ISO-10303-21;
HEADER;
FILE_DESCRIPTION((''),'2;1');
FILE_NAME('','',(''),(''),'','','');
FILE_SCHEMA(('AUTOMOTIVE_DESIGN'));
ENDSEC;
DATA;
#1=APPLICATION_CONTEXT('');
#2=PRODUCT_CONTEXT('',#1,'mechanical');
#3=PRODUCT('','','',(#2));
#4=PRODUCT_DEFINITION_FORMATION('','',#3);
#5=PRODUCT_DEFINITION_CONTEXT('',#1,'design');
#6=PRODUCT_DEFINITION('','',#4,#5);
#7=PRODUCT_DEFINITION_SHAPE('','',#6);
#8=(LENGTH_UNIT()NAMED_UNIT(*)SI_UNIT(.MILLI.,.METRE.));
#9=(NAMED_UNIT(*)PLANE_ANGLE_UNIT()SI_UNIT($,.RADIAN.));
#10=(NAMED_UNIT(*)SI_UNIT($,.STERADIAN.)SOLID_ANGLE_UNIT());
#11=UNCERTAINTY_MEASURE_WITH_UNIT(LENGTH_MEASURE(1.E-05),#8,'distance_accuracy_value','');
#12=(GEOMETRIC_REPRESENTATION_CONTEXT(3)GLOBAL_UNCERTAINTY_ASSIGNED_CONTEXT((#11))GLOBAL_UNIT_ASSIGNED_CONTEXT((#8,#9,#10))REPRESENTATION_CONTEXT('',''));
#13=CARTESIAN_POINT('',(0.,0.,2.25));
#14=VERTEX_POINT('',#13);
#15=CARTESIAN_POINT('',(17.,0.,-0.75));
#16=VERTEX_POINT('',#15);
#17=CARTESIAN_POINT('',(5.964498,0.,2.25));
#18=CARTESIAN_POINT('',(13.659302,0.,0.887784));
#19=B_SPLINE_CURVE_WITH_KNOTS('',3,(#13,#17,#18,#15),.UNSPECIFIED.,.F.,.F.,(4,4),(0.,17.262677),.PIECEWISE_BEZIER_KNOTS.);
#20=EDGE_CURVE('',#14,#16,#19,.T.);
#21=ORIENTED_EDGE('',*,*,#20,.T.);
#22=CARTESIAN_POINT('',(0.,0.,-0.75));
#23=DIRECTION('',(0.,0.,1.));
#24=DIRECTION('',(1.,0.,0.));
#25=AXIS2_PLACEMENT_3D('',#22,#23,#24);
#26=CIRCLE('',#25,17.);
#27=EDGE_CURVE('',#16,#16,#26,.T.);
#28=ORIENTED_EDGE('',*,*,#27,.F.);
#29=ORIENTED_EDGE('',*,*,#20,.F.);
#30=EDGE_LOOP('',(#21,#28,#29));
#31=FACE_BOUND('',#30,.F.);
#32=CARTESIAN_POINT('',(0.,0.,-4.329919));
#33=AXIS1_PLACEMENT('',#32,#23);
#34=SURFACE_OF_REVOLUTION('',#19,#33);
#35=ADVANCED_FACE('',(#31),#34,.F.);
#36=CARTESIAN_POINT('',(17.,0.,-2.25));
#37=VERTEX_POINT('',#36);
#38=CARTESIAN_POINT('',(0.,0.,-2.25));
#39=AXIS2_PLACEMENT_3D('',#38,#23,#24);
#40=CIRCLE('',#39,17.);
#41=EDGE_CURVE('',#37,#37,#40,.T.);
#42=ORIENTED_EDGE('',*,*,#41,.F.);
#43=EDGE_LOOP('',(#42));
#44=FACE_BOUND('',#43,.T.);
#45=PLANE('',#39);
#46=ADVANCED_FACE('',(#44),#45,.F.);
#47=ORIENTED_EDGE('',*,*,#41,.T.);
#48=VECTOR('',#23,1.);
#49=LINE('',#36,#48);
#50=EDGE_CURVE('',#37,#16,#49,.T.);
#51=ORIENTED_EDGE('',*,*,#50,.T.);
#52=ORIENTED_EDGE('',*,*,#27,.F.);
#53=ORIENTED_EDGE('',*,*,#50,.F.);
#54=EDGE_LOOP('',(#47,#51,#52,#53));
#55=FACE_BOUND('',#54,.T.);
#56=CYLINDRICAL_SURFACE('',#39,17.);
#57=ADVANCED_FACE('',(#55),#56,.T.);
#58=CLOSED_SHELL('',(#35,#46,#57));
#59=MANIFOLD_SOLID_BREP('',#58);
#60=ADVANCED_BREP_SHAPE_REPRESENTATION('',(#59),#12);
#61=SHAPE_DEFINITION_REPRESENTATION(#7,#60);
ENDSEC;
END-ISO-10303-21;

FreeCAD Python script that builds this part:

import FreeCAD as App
import Part
import Sketcher

V = App.Vector
Q = App.Units.Quantity

doc = App.newDocument("Part")
body = doc.addObject("PartDesign::Body", "Body")

# Sketch on XZ plane
sketch1 = doc.addObject("Sketcher::SketchObject", "Sketch")
body.addObject(sketch1)
sketch1.AttachmentSupport = (doc.XZ_Plane, [""])
sketch1.MapMode = "FlatFace"
sketch1.addGeometry([
    Part.LineSegment(V(0, -2.25, 0), V(17, -2.25, 0)),
    Part.LineSegment(V(17, -2.25, 0), V(17, -0.75, 0)),
    Part.BSplineCurve([V(0, 2.25, 0), V(5.964498, 2.25, 0), V(13.659302, 0.887784, 0), V(17, -0.75, 0)], [4, 4], [0, 17.262677], False, 3, [1, 1, 1, 1], False),
    Part.LineSegment(V(0, 2.25, 0), V(0, -2.25, 0)),
], False)
sketch1.addConstraint([
    Sketcher.Constraint("Block", 2),
    Sketcher.Constraint("Coincident", 0, 2, 1, 1),
    Sketcher.Constraint("Coincident", 1, 2, 2, 2),
    Sketcher.Constraint("Coincident", 2, 1, 3, 1),
    Sketcher.Constraint("Coincident", 3, 2, 0, 1),
    Sketcher.Constraint("Horizontal", 0),
    Sketcher.Constraint("Vertical", 1),
    Sketcher.Constraint("Vertical", 3),
    Sketcher.Constraint("DistanceY", 1, 1, 1, 2, Q("1.5 mm")),
])
revolution = doc.addObject("PartDesign::Revolution", "Revolution")
body.addObject(revolution)
revolution.Profile = sketch1
revolution.ReferenceAxis = (sketch1, ["V_Axis"])
revolution.Angle = 360

doc.recompute()
